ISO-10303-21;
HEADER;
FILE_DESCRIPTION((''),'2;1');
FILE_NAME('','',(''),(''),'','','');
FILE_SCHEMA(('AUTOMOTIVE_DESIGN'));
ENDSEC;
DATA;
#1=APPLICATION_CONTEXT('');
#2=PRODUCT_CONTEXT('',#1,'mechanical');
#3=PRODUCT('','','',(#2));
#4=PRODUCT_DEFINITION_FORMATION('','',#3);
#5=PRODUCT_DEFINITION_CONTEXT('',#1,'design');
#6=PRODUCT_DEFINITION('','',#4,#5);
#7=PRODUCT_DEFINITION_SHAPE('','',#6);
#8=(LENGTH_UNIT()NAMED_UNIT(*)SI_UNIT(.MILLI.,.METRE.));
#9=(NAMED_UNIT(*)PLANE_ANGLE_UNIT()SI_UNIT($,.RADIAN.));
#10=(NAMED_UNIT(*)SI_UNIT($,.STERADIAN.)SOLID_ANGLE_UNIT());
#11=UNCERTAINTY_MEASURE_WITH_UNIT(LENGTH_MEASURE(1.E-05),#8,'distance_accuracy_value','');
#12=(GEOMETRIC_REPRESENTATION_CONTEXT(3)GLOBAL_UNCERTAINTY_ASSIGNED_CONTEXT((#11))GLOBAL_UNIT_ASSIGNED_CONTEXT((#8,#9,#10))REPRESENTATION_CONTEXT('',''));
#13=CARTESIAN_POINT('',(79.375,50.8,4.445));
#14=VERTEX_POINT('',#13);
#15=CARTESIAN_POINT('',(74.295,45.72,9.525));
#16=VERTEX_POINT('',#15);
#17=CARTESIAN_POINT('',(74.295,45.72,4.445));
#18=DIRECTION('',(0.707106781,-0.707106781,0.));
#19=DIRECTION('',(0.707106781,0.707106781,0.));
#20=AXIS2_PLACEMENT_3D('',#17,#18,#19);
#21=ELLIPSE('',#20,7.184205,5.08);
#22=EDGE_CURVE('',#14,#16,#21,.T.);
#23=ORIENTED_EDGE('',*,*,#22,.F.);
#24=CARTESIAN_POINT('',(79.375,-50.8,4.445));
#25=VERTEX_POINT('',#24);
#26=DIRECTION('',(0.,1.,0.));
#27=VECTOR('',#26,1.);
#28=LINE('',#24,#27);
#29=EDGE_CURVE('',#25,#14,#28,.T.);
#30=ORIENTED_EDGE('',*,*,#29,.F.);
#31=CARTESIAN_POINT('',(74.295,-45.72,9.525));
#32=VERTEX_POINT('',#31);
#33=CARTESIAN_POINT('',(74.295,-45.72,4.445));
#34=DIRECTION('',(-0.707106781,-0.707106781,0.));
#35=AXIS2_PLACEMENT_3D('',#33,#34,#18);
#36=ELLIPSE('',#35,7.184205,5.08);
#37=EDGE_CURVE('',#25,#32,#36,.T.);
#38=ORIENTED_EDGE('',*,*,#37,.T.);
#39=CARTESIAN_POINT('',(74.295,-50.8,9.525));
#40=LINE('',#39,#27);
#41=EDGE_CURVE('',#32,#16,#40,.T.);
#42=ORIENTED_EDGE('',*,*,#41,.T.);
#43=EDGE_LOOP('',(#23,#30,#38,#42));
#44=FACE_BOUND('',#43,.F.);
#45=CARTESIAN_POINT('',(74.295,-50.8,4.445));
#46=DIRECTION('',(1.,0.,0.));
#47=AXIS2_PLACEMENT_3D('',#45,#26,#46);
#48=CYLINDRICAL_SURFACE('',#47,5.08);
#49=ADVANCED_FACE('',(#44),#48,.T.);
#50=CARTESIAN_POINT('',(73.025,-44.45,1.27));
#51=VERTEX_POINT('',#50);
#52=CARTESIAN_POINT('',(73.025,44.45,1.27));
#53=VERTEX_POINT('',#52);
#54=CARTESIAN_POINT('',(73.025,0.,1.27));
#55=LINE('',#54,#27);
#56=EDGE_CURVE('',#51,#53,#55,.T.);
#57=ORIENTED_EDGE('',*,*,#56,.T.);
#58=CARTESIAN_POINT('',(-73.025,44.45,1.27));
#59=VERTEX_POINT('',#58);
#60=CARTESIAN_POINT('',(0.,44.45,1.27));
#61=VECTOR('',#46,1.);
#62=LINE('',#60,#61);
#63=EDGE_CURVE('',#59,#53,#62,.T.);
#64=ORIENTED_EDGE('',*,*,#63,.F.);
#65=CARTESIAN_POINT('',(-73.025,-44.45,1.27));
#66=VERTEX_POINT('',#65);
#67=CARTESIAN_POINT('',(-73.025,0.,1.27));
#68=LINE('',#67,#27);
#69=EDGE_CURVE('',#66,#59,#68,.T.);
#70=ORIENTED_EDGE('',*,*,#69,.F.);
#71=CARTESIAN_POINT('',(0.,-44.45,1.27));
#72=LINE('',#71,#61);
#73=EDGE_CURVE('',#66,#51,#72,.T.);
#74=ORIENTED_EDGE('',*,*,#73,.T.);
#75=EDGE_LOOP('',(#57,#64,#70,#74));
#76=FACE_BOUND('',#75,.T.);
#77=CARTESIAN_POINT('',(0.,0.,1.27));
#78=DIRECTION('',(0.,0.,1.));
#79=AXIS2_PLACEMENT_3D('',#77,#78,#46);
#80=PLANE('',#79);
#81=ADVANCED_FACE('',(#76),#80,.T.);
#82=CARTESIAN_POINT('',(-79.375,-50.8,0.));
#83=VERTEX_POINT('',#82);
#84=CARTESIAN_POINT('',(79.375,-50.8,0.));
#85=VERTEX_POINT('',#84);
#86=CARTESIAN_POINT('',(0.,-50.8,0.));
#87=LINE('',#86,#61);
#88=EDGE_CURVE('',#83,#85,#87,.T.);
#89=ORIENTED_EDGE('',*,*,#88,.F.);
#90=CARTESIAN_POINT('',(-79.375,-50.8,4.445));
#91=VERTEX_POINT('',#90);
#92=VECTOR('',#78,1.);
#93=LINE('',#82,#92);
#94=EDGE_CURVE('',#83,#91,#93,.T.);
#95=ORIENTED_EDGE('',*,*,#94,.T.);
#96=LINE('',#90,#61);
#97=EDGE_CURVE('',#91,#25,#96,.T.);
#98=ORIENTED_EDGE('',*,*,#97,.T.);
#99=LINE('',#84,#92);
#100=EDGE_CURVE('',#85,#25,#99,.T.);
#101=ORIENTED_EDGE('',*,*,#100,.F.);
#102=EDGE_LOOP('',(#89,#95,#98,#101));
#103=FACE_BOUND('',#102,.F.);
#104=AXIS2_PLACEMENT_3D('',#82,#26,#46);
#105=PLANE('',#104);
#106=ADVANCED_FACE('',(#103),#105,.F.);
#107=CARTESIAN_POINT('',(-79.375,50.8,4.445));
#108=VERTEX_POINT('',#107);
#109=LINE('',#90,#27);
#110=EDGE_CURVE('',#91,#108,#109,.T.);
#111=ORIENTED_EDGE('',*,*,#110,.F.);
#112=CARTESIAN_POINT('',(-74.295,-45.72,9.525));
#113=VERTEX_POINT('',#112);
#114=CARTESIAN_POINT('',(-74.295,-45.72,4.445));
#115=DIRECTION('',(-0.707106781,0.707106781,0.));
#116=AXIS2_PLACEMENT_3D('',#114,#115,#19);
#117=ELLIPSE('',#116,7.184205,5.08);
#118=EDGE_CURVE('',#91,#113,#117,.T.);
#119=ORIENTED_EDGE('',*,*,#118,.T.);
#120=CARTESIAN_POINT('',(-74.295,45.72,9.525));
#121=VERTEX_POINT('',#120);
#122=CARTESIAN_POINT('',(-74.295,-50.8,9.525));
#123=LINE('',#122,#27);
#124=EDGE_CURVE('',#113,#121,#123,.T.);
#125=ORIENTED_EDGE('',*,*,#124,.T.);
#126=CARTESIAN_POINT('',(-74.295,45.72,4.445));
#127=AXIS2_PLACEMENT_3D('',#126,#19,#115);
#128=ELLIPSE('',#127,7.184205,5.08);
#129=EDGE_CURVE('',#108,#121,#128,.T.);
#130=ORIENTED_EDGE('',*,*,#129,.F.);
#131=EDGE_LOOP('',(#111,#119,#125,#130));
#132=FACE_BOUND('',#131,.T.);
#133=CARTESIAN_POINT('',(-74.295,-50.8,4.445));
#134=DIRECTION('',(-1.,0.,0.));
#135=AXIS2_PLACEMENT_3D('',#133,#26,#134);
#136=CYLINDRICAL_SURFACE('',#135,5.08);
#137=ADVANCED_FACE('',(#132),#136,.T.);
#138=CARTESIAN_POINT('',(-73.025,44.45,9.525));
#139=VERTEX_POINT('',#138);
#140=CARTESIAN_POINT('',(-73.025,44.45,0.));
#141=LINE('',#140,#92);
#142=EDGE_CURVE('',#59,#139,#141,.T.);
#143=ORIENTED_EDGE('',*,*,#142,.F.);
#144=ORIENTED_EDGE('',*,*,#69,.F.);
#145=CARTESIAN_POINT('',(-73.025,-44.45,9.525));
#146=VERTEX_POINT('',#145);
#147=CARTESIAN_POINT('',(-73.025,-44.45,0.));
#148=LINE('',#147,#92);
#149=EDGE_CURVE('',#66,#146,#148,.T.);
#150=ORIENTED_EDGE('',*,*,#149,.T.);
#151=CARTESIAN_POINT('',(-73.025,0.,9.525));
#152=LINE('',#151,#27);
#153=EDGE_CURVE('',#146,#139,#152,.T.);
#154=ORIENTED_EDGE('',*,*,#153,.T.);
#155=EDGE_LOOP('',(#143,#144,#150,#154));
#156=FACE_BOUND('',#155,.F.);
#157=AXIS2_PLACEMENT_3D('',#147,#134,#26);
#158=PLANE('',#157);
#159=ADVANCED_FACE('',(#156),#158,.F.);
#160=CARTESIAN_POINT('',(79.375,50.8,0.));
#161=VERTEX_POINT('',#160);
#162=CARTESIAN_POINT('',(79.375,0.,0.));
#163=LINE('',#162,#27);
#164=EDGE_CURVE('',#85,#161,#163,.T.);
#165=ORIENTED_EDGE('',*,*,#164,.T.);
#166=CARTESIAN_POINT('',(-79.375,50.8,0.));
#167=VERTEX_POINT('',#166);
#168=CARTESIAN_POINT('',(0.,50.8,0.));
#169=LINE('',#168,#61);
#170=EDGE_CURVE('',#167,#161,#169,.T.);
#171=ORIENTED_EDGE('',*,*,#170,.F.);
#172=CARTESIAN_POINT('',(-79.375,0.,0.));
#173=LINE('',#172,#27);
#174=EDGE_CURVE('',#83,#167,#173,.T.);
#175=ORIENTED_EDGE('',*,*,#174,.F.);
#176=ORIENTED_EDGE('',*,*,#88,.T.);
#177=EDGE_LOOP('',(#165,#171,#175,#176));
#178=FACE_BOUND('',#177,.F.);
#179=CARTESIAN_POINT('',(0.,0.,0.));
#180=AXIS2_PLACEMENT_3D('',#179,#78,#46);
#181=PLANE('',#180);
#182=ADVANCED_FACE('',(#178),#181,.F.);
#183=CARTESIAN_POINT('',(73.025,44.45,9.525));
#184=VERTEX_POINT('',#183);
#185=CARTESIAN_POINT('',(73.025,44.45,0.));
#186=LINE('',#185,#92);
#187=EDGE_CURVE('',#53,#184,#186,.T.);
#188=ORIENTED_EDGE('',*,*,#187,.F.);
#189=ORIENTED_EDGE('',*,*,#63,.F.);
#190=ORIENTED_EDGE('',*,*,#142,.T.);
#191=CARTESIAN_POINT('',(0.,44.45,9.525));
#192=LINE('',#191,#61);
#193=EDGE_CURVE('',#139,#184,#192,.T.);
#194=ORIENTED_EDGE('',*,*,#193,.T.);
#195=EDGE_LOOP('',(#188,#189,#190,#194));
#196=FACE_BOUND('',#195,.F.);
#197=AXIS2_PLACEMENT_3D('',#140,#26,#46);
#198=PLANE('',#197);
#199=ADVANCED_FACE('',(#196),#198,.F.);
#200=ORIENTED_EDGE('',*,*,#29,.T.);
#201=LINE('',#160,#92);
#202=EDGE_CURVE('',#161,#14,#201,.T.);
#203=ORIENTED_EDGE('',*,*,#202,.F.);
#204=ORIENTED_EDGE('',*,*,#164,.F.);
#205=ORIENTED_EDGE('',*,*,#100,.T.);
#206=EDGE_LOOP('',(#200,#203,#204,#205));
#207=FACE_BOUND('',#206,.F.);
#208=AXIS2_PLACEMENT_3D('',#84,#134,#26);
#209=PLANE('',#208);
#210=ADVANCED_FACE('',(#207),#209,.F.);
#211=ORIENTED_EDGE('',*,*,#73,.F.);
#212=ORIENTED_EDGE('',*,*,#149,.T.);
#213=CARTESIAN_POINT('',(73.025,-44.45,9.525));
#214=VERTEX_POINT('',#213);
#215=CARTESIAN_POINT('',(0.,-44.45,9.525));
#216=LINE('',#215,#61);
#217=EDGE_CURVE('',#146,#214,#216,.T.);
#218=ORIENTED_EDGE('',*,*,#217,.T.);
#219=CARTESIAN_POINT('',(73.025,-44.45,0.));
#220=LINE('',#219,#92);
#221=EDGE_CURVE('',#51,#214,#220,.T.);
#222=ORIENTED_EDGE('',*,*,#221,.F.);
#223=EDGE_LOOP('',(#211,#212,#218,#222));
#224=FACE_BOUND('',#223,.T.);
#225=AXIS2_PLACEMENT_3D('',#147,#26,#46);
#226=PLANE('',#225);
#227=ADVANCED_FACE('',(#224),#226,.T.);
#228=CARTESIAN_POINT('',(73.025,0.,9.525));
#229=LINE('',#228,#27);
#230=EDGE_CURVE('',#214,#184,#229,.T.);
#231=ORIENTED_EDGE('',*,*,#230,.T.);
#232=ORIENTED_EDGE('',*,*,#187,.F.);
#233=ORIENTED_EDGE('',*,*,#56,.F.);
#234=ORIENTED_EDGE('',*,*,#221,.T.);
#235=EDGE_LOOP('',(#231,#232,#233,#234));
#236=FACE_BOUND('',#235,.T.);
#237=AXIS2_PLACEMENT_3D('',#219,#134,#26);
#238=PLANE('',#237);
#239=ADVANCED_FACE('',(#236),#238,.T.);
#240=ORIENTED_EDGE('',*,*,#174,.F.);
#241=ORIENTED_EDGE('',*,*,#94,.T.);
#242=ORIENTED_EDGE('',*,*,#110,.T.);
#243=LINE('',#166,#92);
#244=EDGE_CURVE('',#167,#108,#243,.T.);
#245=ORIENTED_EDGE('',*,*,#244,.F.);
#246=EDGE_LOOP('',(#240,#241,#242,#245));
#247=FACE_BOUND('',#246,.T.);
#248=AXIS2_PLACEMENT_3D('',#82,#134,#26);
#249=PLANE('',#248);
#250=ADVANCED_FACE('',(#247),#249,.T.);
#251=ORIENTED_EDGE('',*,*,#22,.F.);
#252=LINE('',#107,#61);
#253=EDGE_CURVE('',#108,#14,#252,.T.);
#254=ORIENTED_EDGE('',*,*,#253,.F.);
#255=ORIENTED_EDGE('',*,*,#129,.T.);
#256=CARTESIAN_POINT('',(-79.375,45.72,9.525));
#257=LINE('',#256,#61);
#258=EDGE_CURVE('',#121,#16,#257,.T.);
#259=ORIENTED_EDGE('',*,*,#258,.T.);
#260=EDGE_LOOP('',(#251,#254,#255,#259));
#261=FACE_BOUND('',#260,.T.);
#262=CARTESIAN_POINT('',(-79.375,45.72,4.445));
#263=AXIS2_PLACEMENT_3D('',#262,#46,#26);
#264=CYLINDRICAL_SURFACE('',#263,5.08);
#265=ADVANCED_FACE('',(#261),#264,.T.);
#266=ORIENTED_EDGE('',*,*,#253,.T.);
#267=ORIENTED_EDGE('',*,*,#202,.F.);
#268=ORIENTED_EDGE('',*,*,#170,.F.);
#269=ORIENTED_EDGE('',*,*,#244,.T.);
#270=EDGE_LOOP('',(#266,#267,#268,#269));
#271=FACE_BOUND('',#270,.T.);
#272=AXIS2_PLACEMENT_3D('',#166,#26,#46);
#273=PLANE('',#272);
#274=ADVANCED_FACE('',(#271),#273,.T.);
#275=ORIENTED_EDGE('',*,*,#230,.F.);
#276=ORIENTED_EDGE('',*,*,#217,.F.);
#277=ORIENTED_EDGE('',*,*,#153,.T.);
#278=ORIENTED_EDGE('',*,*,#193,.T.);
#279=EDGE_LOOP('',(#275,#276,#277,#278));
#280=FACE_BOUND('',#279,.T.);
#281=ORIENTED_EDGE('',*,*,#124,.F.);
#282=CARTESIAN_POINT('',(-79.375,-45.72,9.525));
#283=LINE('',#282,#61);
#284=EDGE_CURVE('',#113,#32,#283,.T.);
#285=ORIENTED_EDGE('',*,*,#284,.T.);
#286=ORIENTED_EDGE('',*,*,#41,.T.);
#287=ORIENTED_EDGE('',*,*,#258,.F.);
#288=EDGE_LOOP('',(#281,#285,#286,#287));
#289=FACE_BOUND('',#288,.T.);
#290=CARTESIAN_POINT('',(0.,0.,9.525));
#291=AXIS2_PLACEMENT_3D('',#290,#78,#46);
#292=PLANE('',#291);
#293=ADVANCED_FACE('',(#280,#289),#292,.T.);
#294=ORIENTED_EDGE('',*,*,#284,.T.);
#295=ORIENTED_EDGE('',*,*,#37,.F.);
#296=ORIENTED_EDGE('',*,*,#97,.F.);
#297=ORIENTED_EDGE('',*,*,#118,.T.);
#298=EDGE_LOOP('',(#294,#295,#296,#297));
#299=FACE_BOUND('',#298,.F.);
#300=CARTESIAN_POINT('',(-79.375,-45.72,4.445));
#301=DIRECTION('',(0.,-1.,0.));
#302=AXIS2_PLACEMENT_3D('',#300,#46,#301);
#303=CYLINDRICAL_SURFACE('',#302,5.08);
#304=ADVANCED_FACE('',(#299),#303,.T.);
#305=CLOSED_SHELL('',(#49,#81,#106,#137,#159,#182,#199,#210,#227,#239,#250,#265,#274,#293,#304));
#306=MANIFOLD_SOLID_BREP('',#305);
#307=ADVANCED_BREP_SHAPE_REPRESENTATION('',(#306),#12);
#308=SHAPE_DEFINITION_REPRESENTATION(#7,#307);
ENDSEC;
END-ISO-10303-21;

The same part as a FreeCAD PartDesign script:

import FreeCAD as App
import Part
import Sketcher
Q = App.Units.Quantity


def edges_at(feature, points):
    """Names of the edges that pass closest to the given points."""
    edges = feature.Shape.Edges
    near = lambda p: min(range(len(edges)), key=lambda i: edges[i].distToShape(Part.Vertex(*p))[0])
    return sorted({f"Edge{near(p) + 1}" for p in points})

doc = App.newDocument("Part")
params = doc.addObject("Spreadsheet::Sheet", "Params")
for row, (alias, value) in enumerate([
    ("sketch1_height", "4 in"),
    ("sketch1_height2", "3.5 in"),
    ("sketch1_width", "6.25 in"),
    ("pad1_length", "0.375 in"),
    ("fillet_radius", "0.2 in"),
    ("sketch2_height", "3.5 in"),
    ("sketch2_width", "5.75 in"),
    ("pad2_length", "0.05 in"),
], start=1):
    params.set(f"A{row}", alias)
    params.set(f"B{row}", "=" + value)
    params.setAlias(f"B{row}", alias)

body = doc.addObject("PartDesign::Body", "Body")

# Sketch on XY plane
sketch1 = body.newObject("Sketcher::SketchObject", "Sketch")
sketch1.AttachmentSupport = (doc.getObject("XY_Plane"), [""])
sketch1.MapMode = "FlatFace"
sketch1.addGeometry([
    Part.LineSegment(App.Vector(-79, 51, 0), App.Vector(-79, -51, 0)),  # 0
    Part.LineSegment(App.Vector(-79, -51, 0), App.Vector(79, -51, 0)),  # 1
    Part.LineSegment(App.Vector(79, -51, 0), App.Vector(79, 51, 0)),  # 2
    Part.LineSegment(App.Vector(79, 51, 0), App.Vector(-79, 51, 0)),  # 3
    Part.LineSegment(App.Vector(73, -44, 0), App.Vector(-73, -44, 0)),  # 4
    Part.LineSegment(App.Vector(-73, -44, 0), App.Vector(-73, 44, 0)),  # 5
    Part.LineSegment(App.Vector(-73, 44, 0), App.Vector(73, 44, 0)),  # 6
    Part.LineSegment(App.Vector(73, 44, 0), App.Vector(73, -44, 0)),  # 7
], False)
sketch1.addConstraint([
    Sketcher.Constraint("Coincident", 0, 2, 1, 1),
    Sketcher.Constraint("Coincident", 1, 2, 2, 1),
    Sketcher.Constraint("Coincident", 2, 2, 3, 1),
    Sketcher.Constraint("Coincident", 3, 2, 0, 1),
    Sketcher.Constraint("Coincident", 4, 2, 5, 1),
    Sketcher.Constraint("Coincident", 5, 2, 6, 1),
    Sketcher.Constraint("Coincident", 6, 2, 7, 1),
    Sketcher.Constraint("Coincident", 7, 2, 4, 1),
    Sketcher.Constraint("Vertical", 0),
    Sketcher.Constraint("Horizontal", 1),
    Sketcher.Constraint("Vertical", 2),
    Sketcher.Constraint("Horizontal", 3),
    Sketcher.Constraint("Horizontal", 4),
    Sketcher.Constraint("Vertical", 5),
    Sketcher.Constraint("Horizontal", 6),
    Sketcher.Constraint("Vertical", 7),
    Sketcher.Constraint("Symmetric", 0, 2, 2, 2, -1, 1),
    Sketcher.Constraint("Symmetric", 4, 2, 6, 2, -1, 1),
    Sketcher.Constraint("DistanceY", 0, 2, 0, 1, Q("4 in")),
    Sketcher.Constraint("DistanceY", 5, 1, 5, 2, Q("3.5 in")),
    Sketcher.Constraint("DistanceX", 4, 2, 1, 2, Q("6 in")),
    Sketcher.Constraint("DistanceX", 1, 1, 1, 2, Q("6.25 in")),
])
sketch1.setExpression("Constraints[18]", "Params.sketch1_height")
sketch1.setExpression("Constraints[19]", "Params.sketch1_height2")
sketch1.setExpression("Constraints[21]", "Params.sketch1_width")
pad1 = body.newObject("PartDesign::Pad", "Pad")
pad1.Profile = sketch1
pad1.setExpression("Length", "Params.pad1_length")
doc.recompute()

fillet = body.newObject("PartDesign::Fillet", "Fillet")
fillet.Base = (pad1, edges_at(pad1, [
    (-79.375, 0, 9.525),
    (0, -50.8, 9.525),
    (79.375, 0, 9.525),
    (0, 50.8, 9.525),
]))
fillet.setExpression("Radius", "Params.fillet_radius")

# Sketch on XY plane
sketch2 = body.newObject("Sketcher::SketchObject", "Sketch001")
sketch2.AttachmentSupport = (doc.getObject("XY_Plane"), [""])
sketch2.MapMode = "FlatFace"
sketch2.addGeometry([
    Part.LineSegment(App.Vector(-73, 44, 0), App.Vector(-73, -44, 0)),
    Part.LineSegment(App.Vector(-73, -44, 0), App.Vector(73, -44, 0)),
    Part.LineSegment(App.Vector(73, -44, 0), App.Vector(73, 44, 0)),
    Part.LineSegment(App.Vector(73, 44, 0), App.Vector(-73, 44, 0)),
], False)
sketch2.addConstraint([
    Sketcher.Constraint("Coincident", 0, 2, 1, 1),
    Sketcher.Constraint("Coincident", 1, 2, 2, 1),
    Sketcher.Constraint("Coincident", 2, 2, 3, 1),
    Sketcher.Constraint("Coincident", 3, 2, 0, 1),
    Sketcher.Constraint("Vertical", 0),
    Sketcher.Constraint("Horizontal", 1),
    Sketcher.Constraint("Vertical", 2),
    Sketcher.Constraint("Horizontal", 3),
    Sketcher.Constraint("Symmetric", 0, 2, 2, 2, -1, 1),
    Sketcher.Constraint("DistanceY", 0, 2, 0, 1, Q("3.5 in")),
    Sketcher.Constraint("DistanceX", 1, 1, 1, 2, Q("5.75 in")),
])
sketch2.setExpression("Constraints[9]", "Params.sketch2_height")
sketch2.setExpression("Constraints[10]", "Params.sketch2_width")
pad2 = body.newObject("PartDesign::Pad", "Pad001")
pad2.Profile = sketch2
pad2.setExpression("Length", "Params.pad2_length")

doc.recompute()
